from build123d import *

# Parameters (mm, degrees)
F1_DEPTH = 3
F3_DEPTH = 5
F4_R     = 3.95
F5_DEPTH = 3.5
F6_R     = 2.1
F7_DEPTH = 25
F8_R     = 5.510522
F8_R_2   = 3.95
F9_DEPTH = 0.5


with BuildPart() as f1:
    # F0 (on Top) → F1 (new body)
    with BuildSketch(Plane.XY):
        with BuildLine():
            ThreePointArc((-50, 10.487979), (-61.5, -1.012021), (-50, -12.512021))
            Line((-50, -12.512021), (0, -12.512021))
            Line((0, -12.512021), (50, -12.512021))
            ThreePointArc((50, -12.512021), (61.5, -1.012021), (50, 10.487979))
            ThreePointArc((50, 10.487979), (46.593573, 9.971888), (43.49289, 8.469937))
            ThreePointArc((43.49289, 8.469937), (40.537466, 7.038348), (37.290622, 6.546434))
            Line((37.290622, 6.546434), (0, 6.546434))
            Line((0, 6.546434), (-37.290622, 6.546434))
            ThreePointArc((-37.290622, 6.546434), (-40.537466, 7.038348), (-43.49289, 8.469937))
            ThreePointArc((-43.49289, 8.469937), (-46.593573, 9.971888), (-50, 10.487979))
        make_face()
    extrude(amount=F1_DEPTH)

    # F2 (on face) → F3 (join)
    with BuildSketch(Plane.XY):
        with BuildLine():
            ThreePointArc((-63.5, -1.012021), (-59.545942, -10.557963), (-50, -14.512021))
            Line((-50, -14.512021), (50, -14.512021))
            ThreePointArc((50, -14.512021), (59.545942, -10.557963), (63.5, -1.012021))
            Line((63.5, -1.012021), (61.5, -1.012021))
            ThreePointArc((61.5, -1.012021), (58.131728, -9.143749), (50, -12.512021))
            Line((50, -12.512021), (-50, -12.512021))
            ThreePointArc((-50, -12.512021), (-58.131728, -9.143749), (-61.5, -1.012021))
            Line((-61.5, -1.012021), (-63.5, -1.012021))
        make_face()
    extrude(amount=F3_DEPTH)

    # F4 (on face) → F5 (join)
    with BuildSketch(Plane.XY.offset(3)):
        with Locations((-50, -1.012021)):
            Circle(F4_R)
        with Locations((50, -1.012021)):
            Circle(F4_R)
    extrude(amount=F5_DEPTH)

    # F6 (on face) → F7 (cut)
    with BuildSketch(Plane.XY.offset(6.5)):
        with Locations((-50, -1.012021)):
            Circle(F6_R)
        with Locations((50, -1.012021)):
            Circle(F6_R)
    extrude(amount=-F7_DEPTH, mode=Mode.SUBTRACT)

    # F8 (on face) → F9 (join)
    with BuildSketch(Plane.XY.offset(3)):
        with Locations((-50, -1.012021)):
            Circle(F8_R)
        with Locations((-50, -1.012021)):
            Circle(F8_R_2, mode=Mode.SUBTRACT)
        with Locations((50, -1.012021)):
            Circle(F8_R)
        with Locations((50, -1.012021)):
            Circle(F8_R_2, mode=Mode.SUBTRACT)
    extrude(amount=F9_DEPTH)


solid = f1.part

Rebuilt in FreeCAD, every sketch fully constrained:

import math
import FreeCAD as App
import Part
import Sketcher

V = App.Vector
Q = App.Units.Quantity

doc = App.newDocument("Part")
body = doc.addObject("PartDesign::Body", "Body")

# Sketch on XY plane
sketch1 = body.newObject("Sketcher::SketchObject", "Sketch")
sketch1.AttachmentSupport = (doc.getObject("XY_Plane"), [""])
sketch1.MapMode = "FlatFace"
sketch1.addGeometry(Part.ArcOfCircle(Part.Circle(V(-50, -1, 0), V(0, 0, 1), 12), math.radians(90), math.radians(270)), False)
sketch1.addGeometry(Part.LineSegment(V(-50, -13, 0), V(50, -13, 0)), False)
sketch1.addGeometry(Part.ArcOfCircle(Part.Circle(V(50, -1, 0), V(0, 0, 1), 12), math.radians(-90), math.radians(90)), False)
sketch1.addGeometry(Part.ArcOfCircle(Part.Circle(V(50, -1, 0), V(0, 0, 1), 12), math.radians(90), math.radians(124)), False)
sketch1.addGeometry(Part.ArcOfCircle(Part.Circle(V(37, 18, 0), V(0, 0, 1), 11), math.radians(-90), math.radians(-56)), False)
sketch1.addGeometry(Part.LineSegment(V(37, 7, 0), V(-37, 7, 0)), False)
sketch1.addGeometry(Part.ArcOfCircle(Part.Circle(V(-37, 18, 0), V(0, 0, 1), 11), math.radians(-124), math.radians(-90)), False)
sketch1.addGeometry(Part.ArcOfCircle(Part.Circle(V(-50, -1, 0), V(0, 0, 1), 12), math.radians(56), math.radians(90)), False)
sketch1.addConstraint(Sketcher.Constraint("Tangent", 0, 2, 1, 1))
sketch1.addConstraint(Sketcher.Constraint("Tangent", 1, 2, 2, 1))
sketch1.addConstraint(Sketcher.Constraint("Tangent", 2, 2, 3, 1))
sketch1.addConstraint(Sketcher.Constraint("Tangent", 3, 2, 4, 2))
sketch1.addConstraint(Sketcher.Constraint("Tangent", 4, 1, 5, 1))
sketch1.addConstraint(Sketcher.Constraint("Tangent", 5, 2, 6, 2))
sketch1.addConstraint(Sketcher.Constraint("Tangent", 6, 1, 7, 1))
sketch1.addConstraint(Sketcher.Constraint("Tangent", 7, 2, 0, 1))
sketch1.addConstraint(Sketcher.Constraint("Horizontal", 1))
sketch1.addConstraint(Sketcher.Constraint("Horizontal", 5))
sketch1.addConstraint(Sketcher.Constraint("Equal", 0, 2))
sketch1.addConstraint(Sketcher.Constraint("Equal", 4, 6))
sketch1.addConstraint(Sketcher.Constraint("Equal", 3, 7))
sketch1.addConstraint(Sketcher.Constraint("Symmetric", 0, 3, 3, 3, -2))
sketch1.addConstraint(Sketcher.Constraint("Vertical", 1, 2, 2, 2))
sketch1.addConstraint(Sketcher.Constraint("Vertical", 0, 2, 7, 2))
sketch1.addConstraint(Sketcher.Constraint("Radius", 0, Q("11.5 mm")))
sketch1.addConstraint(Sketcher.Constraint("DistanceX", 1, 1, 1, 2, Q("100 mm")))
sketch1.addConstraint(Sketcher.Constraint("Radius", 4, Q("10.961258 mm")))
sketch1.addConstraint(Sketcher.Constraint("DistanceX", 5, 2, 5, 1, Q("74.581244 mm")))
sketch1.addConstraint(Sketcher.Constraint("DistanceY", 0, 3, -1, 1, Q("1.012021 mm")))
pad1 = body.newObject("PartDesign::Pad", "Pad")
pad1.Profile = sketch1
pad1.Length = 3

# Sketch on XY plane
sketch2 = body.newObject("Sketcher::SketchObject", "Sketch001")
sketch2.AttachmentSupport = (doc.getObject("XY_Plane"), [""])
sketch2.MapMode = "FlatFace"
sketch2.addGeometry(Part.ArcOfCircle(Part.Circle(V(-50, -1, 0), V(0, 0, 1), 13.5), math.radians(180), math.radians(270)), False)
sketch2.addGeometry(Part.LineSegment(V(-50, -14.5, 0), V(50, -14.5, 0)), False)
sketch2.addGeometry(Part.ArcOfCircle(Part.Circle(V(50, -1, 0), V(0, 0, 1), 13.5), math.radians(-90), math.radians(0)), False)
sketch2.addGeometry(Part.LineSegment(V(63.5, -1, 0), V(61.5, -1, 0)), False)
sketch2.addGeometry(Part.ArcOfCircle(Part.Circle(V(50, -1, 0), V(0, 0, 1), 11.5), math.radians(-90), math.radians(0)), False)
sketch2.addGeometry(Part.LineSegment(V(50, -12.5, 0), V(-50, -12.5, 0)), False)
sketch2.addGeometry(Part.ArcOfCircle(Part.Circle(V(-50, -1, 0), V(0, 0, 1), 11.5), math.radians(180), math.radians(270)), False)
sketch2.addGeometry(Part.LineSegment(V(-61.5, -1, 0), V(-63.5, -1, 0)), False)
sketch2.addConstraint(Sketcher.Constraint("Tangent", 0, 2, 1, 1))
sketch2.addConstraint(Sketcher.Constraint("Tangent", 1, 2, 2, 1))
sketch2.addConstraint(Sketcher.Constraint("Coincident", 2, 2, 3, 1))
sketch2.addConstraint(Sketcher.Constraint("Coincident", 3, 2, 4, 2))
sketch2.addConstraint(Sketcher.Constraint("Tangent", 4, 1, 5, 1))
sketch2.addConstraint(Sketcher.Constraint("Tangent", 5, 2, 6, 2))
sketch2.addConstraint(Sketcher.Constraint("Coincident", 6, 1, 7, 1))
sketch2.addConstraint(Sketcher.Constraint("Coincident", 7, 2, 0, 1))
sketch2.addConstraint(Sketcher.Constraint("Horizontal", 1))
sketch2.addConstraint(Sketcher.Constraint("Horizontal", 3))
sketch2.addConstraint(Sketcher.Constraint("Horizontal", 5))
sketch2.addConstraint(Sketcher.Constraint("Horizontal", 7))
sketch2.addConstraint(Sketcher.Constraint("Coincident", 4, 3, 2, 3))
sketch2.addConstraint(Sketcher.Constraint("Coincident", 6, 3, 0, 3))
sketch2.addConstraint(Sketcher.Constraint("Equal", 0, 2))
sketch2.addConstraint(Sketcher.Constraint("Symmetric", 3, 2, 6, 1, -2))
sketch2.addConstraint(Sketcher.Constraint("Horizontal", 6, 3, 2, 2))
sketch2.addConstraint(Sketcher.Constraint("Radius", 0, Q("13.499998 mm")))
sketch2.addConstraint(Sketcher.Constraint("Radius", 4, Q("11.5 mm")))
sketch2.addConstraint(Sketcher.Constraint("DistanceX", 1, 1, 1, 2, Q("100 mm")))
sketch2.addConstraint(Sketcher.Constraint("DistanceY", 4, 3, -1, 1, Q("1.012021 mm")))
pad2 = body.newObject("PartDesign::Pad", "Pad001")
pad2.Profile = sketch2
pad2.Length = 5

# Sketch on XY plane
sketch3 = body.newObject("Sketcher::SketchObject", "Sketch002")
sketch3.AttachmentSupport = (doc.getObject("XY_Plane"), [""])
sketch3.MapMode = "FlatFace"
sketch3.AttachmentOffset = App.Placement(V(0, 0, 3), App.Rotation())
sketch3.addGeometry(Part.Circle(V(-50, -1, 0), V(0, 0, 1), 4), False)
sketch3.addGeometry(Part.Circle(V(50, -1, 0), V(0, 0, 1), 4), False)
sketch3.addConstraint(Sketcher.Constraint("Equal", 0, 1))
sketch3.addConstraint(Sketcher.Constraint("Symmetric", 0, 3, 1, 3, -2))
sketch3.addConstraint(Sketcher.Constraint("Diameter", 0, Q("7.9 mm")))
sketch3.addConstraint(Sketcher.Constraint("DistanceX", 0, 3, -1, 1, Q("50 mm")))
sketch3.addConstraint(Sketcher.Constraint("DistanceY", 0, 3, -1, 1, Q("1.012021 mm")))
pad3 = body.newObject("PartDesign::Pad", "Pad002")
pad3.Profile = sketch3
pad3.Length = 3.5

# Sketch on XY plane
sketch4 = body.newObject("Sketcher::SketchObject", "Sketch003")
sketch4.AttachmentSupport = (doc.getObject("XY_Plane"), [""])
sketch4.MapMode = "FlatFace"
sketch4.AttachmentOffset = App.Placement(V(0, 0, 6.5), App.Rotation())
sketch4.addGeometry(Part.Circle(V(-50, -1, 0), V(0, 0, 1), 2.1), False)
sketch4.addGeometry(Part.Circle(V(50, -1, 0), V(0, 0, 1), 2.1), False)
sketch4.addConstraint(Sketcher.Constraint("Equal", 0, 1))
sketch4.addConstraint(Sketcher.Constraint("Symmetric", 0, 3, 1, 3, -2))
sketch4.addConstraint(Sketcher.Constraint("Diameter", 0, Q("4.2 mm")))
sketch4.addConstraint(Sketcher.Constraint("DistanceX", 0, 3, -1, 1, Q("50 mm")))
sketch4.addConstraint(Sketcher.Constraint("DistanceY", 0, 3, -1, 1, Q("1.012021 mm")))
pocket1 = body.newObject("PartDesign::Pocket", "Pocket")
pocket1.Profile = sketch4
pocket1.Length = 25

# Sketch on XY plane
sketch5 = body.newObject("Sketcher::SketchObject", "Sketch004")
sketch5.AttachmentSupport = (doc.getObject("XY_Plane"), [""])
sketch5.MapMode = "FlatFace"
sketch5.AttachmentOffset = App.Placement(V(0, 0, 3), App.Rotation())
sketch5.addGeometry(Part.Circle(V(-50, -1, 0), V(0, 0, 1), 5.5), False)
sketch5.addGeometry(Part.Circle(V(-50, -1, 0), V(0, 0, 1), 4), False)
sketch5.addGeometry(Part.Circle(V(50, -1, 0), V(0, 0, 1), 5.5), False)
sketch5.addGeometry(Part.Circle(V(50, -1, 0), V(0, 0, 1), 4), False)
sketch5.addConstraint(Sketcher.Constraint("Coincident", 1, 3, 0, 3))
sketch5.addConstraint(Sketcher.Constraint("Coincident", 3, 3, 2, 3))
sketch5.addConstraint(Sketcher.Constraint("Equal", 0, 2))
sketch5.addConstraint(Sketcher.Constraint("Equal", 1, 3))
sketch5.addConstraint(Sketcher.Constraint("Symmetric", 0, 3, 2, 3, -2))
sketch5.addConstraint(Sketcher.Constraint("Diameter", 1, Q("7.9 mm")))
sketch5.addConstraint(Sketcher.Constraint("DistanceX", 0, 3, -1, 1, Q("50 mm")))
sketch5.addConstraint(Sketcher.Constraint("Diameter", 0, Q("11.021044 mm")))
sketch5.addConstraint(Sketcher.Constraint("DistanceY", 0, 3, -1, 1, Q("1.012021 mm")))
pad4 = body.newObject("PartDesign::Pad", "Pad003")
pad4.Profile = sketch5
pad4.Length = 0.5

doc.recompute()
